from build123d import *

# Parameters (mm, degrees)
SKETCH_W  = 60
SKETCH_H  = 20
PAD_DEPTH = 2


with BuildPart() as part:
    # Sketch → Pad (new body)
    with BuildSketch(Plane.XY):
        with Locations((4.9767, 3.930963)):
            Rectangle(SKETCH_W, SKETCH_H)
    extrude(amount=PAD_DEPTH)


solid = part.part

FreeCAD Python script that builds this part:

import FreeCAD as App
import Part
import Sketcher

doc = App.newDocument("Part")
body = doc.addObject("PartDesign::Body", "Body")

# Sketch on XY plane
sketch1 = body.newObject("Sketcher::SketchObject", "Sketch")
sketch1.AttachmentSupport = (doc.getObject("XY_Plane"), [""])
sketch1.MapMode = "FlatFace"
sketch1.addGeometry([
    Part.LineSegment(App.Vector(-25.0233, 13.930963, 0), App.Vector(-25.0233, -6.069037, 0)),
    Part.LineSegment(App.Vector(-25.0233, -6.069037, 0), App.Vector(34.9767, -6.069037, 0)),
    Part.LineSegment(App.Vector(34.9767, -6.069037, 0), App.Vector(34.9767, 13.930963, 0)),
    Part.LineSegment(App.Vector(34.9767, 13.930963, 0), App.Vector(-25.0233, 13.930963, 0)),
], False)
sketch1.addConstraint([
    Sketcher.Constraint("Coincident", 0, 2, 1, 1),
    Sketcher.Constraint("Coincident", 1, 2, 2, 1),
    Sketcher.Constraint("Coincident", 2, 2, 3, 1),
    Sketcher.Constraint("Coincident", 3, 2, 0, 1),
    Sketcher.Constraint("Vertical", 0),
    Sketcher.Constraint("Horizontal", 1),
    Sketcher.Constraint("Vertical", 2),
    Sketcher.Constraint("Horizontal", 3),
    Sketcher.Constraint("DistanceX", 1, 1, 1, 2, 60.0),
    Sketcher.Constraint("DistanceY", 0, 2, 0, 1, 20.0),
    Sketcher.Constraint("DistanceX", 0, 2, -1, 1, 25.0233),
    Sketcher.Constraint("DistanceY", 0, 2, -1, 1, 6.069037),
])
pad1 = body.newObject("PartDesign::Pad", "Pad")
pad1.Profile = sketch1
pad1.Length = 2

doc.recompute()
